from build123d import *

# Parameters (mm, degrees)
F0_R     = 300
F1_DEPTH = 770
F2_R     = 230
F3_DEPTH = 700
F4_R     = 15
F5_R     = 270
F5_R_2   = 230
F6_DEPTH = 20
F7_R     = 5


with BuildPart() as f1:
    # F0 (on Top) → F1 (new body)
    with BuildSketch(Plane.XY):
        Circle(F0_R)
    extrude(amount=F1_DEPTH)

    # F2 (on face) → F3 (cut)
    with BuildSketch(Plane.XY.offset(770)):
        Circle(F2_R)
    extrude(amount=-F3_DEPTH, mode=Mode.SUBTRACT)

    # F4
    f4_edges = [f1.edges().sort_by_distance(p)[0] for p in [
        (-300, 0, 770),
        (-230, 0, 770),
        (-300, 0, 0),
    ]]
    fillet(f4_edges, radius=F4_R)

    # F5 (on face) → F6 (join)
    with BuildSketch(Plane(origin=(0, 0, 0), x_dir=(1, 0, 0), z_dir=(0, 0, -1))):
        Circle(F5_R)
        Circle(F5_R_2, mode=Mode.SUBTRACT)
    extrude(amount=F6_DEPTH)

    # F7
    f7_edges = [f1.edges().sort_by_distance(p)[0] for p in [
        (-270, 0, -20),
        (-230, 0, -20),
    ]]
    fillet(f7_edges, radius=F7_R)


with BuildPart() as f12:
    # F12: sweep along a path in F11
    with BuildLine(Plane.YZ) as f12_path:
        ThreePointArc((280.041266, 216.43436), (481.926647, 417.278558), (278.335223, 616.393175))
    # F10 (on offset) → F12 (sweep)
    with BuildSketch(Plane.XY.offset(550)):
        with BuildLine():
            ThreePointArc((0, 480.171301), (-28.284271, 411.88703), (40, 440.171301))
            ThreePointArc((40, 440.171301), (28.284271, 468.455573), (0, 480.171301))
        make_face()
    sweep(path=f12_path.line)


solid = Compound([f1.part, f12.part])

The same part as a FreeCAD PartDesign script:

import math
import FreeCAD as App
import Part
import Sketcher
from FreeCAD import Vector


def edges_at(feature, points):
    """Names of the edges that pass closest to the given points."""
    edges = feature.Shape.Edges
    near = lambda p: min(range(len(edges)), key=lambda i: edges[i].distToShape(Part.Vertex(*p))[0])
    return sorted({f"Edge{near(p) + 1}" for p in points})

doc = App.newDocument("Part")
body = doc.addObject("PartDesign::Body", "Body")

# Sketch on XY plane
sketch1 = body.newObject("Sketcher::SketchObject", "Sketch")
sketch1.AttachmentSupport = (doc.getObject("XY_Plane"), [""])
sketch1.MapMode = "FlatFace"
sketch1.addGeometry(Part.Circle(Vector(0, 0, 0), Vector(0, 0, 1), 300), False)
sketch1.addConstraint(Sketcher.Constraint("Coincident", 0, 3, -1, 1))
sketch1.addConstraint(Sketcher.Constraint("Diameter", 0, 600.0))
pad1 = body.newObject("PartDesign::Pad", "Pad")
pad1.Profile = sketch1
pad1.Length = 770

# Sketch on XY plane
sketch2 = body.newObject("Sketcher::SketchObject", "Sketch001")
sketch2.AttachmentSupport = (doc.getObject("XY_Plane"), [""])
sketch2.MapMode = "FlatFace"
sketch2.AttachmentOffset = App.Placement(Vector(0, 0, 770), App.Rotation())
sketch2.addGeometry(Part.Circle(Vector(0, 0, 0), Vector(0, 0, 1), 230), False)
sketch2.addConstraint(Sketcher.Constraint("Coincident", 0, 3, -1, 1))
sketch2.addConstraint(Sketcher.Constraint("Diameter", 0, 460.0))
pocket1 = body.newObject("PartDesign::Pocket", "Pocket")
pocket1.Profile = sketch2
pocket1.Length = 700
doc.recompute()

fillet = body.newObject("PartDesign::Fillet", "Fillet")
fillet.Base = (pocket1, edges_at(pocket1, [(-300, 0, 770), (-230, 0, 770), (-300, 0, 0)]))
fillet.Radius = 15

# Sketch on XY plane
sketch3 = body.newObject("Sketcher::SketchObject", "Sketch002")
sketch3.AttachmentSupport = (doc.getObject("XY_Plane"), [""])
sketch3.MapMode = "FlatFace"
sketch3.addGeometry(Part.Circle(Vector(0, 0, 0), Vector(0, 0, 1), 270), False)
sketch3.addGeometry(Part.Circle(Vector(0, 0, 0), Vector(0, 0, 1), 230), False)
sketch3.addConstraint(Sketcher.Constraint("Coincident", 0, 3, -1, 1))
sketch3.addConstraint(Sketcher.Constraint("Coincident", 1, 3, -1, 1))
sketch3.addConstraint(Sketcher.Constraint("Diameter", 0, 540.0))
sketch3.addConstraint(Sketcher.Constraint("Diameter", 1, 460.0))
pad2 = body.newObject("PartDesign::Pad", "Pad001")
pad2.Profile = sketch3
pad2.Length = 20
pad2.Reversed = True
doc.recompute()

fillet2 = body.newObject("PartDesign::Fillet", "Fillet001")
fillet2.Base = (pad2, edges_at(pad2, [(-270, 0, -20), (-230, 0, -20)]))
fillet2.Radius = 5
body2 = doc.addObject("PartDesign::Body", "Body001")

# Sketch on XY plane
sketch4 = body2.newObject("Sketcher::SketchObject", "Sketch003")
sketch4.AttachmentSupport = (doc.getObject("XY_Plane001"), [""])
sketch4.MapMode = "FlatFace"
sketch4.AttachmentOffset = App.Placement(Vector(0, 0, 550), App.Rotation())
sketch4.addGeometry(Part.ArcOfCircle(Part.Circle(Vector(0, 440, 0), Vector(0, 0, 1), 40), math.radians(90), math.radians(360)), False)
sketch4.addGeometry(Part.ArcOfCircle(Part.Circle(Vector(0, 440, 0), Vector(0, 0, 1), 40), math.radians(0), math.radians(90)), False)
sketch4.addConstraint(Sketcher.Constraint("Tangent", 0, 1, 1, 2))
sketch4.addConstraint(Sketcher.Constraint("Coincident", 1, 1, 0, 2))
sketch4.addConstraint(Sketcher.Constraint("PointOnObject", 0, 3, -2))
sketch4.addConstraint(Sketcher.Constraint("PointOnObject", 0, 1, -2))
sketch4.addConstraint(Sketcher.Constraint("Horizontal", 0, 3, 1, 1))
sketch4.addConstraint(Sketcher.Constraint("Radius", 0, 40.0))
sketch4.addConstraint(Sketcher.Constraint("DistanceY", -1, 1, 0, 3, 440.171301))

# Sketch on YZ plane
sketch5 = body2.newObject("Sketcher::SketchObject", "Sketch004")
sketch5.AttachmentSupport = (doc.getObject("YZ_Plane001"), [""])
sketch5.MapMode = "FlatFace"
sketch5.addGeometry(Part.ArcOfCircle(Part.Circle(Vector(282, 416, 0), Vector(0, 0, 1), 200), math.radians(-91), math.radians(91)), False)
sketch5.addConstraint(Sketcher.Constraint("Radius", 0, 200.0))
sketch5.addConstraint(Sketcher.Constraint("DistanceX", 0, 1, 0, 3, 1.8872))
sketch5.addConstraint(Sketcher.Constraint("DistanceY", -1, 1, 0, 1, 216.43436))
sketch5.addConstraint(Sketcher.Constraint("DistanceY", 0, 3, 0, 2, 199.967719))
sketch5.addConstraint(Sketcher.Constraint("DistanceX", -1, 1, 0, 3, 281.928466))
doc.recompute()

additivepipe = body2.newObject("PartDesign::AdditivePipe", "AdditivePipe")
additivepipe.Profile = sketch4
additivepipe.Spine = (sketch5, ["Edge1"])

doc.recompute()
